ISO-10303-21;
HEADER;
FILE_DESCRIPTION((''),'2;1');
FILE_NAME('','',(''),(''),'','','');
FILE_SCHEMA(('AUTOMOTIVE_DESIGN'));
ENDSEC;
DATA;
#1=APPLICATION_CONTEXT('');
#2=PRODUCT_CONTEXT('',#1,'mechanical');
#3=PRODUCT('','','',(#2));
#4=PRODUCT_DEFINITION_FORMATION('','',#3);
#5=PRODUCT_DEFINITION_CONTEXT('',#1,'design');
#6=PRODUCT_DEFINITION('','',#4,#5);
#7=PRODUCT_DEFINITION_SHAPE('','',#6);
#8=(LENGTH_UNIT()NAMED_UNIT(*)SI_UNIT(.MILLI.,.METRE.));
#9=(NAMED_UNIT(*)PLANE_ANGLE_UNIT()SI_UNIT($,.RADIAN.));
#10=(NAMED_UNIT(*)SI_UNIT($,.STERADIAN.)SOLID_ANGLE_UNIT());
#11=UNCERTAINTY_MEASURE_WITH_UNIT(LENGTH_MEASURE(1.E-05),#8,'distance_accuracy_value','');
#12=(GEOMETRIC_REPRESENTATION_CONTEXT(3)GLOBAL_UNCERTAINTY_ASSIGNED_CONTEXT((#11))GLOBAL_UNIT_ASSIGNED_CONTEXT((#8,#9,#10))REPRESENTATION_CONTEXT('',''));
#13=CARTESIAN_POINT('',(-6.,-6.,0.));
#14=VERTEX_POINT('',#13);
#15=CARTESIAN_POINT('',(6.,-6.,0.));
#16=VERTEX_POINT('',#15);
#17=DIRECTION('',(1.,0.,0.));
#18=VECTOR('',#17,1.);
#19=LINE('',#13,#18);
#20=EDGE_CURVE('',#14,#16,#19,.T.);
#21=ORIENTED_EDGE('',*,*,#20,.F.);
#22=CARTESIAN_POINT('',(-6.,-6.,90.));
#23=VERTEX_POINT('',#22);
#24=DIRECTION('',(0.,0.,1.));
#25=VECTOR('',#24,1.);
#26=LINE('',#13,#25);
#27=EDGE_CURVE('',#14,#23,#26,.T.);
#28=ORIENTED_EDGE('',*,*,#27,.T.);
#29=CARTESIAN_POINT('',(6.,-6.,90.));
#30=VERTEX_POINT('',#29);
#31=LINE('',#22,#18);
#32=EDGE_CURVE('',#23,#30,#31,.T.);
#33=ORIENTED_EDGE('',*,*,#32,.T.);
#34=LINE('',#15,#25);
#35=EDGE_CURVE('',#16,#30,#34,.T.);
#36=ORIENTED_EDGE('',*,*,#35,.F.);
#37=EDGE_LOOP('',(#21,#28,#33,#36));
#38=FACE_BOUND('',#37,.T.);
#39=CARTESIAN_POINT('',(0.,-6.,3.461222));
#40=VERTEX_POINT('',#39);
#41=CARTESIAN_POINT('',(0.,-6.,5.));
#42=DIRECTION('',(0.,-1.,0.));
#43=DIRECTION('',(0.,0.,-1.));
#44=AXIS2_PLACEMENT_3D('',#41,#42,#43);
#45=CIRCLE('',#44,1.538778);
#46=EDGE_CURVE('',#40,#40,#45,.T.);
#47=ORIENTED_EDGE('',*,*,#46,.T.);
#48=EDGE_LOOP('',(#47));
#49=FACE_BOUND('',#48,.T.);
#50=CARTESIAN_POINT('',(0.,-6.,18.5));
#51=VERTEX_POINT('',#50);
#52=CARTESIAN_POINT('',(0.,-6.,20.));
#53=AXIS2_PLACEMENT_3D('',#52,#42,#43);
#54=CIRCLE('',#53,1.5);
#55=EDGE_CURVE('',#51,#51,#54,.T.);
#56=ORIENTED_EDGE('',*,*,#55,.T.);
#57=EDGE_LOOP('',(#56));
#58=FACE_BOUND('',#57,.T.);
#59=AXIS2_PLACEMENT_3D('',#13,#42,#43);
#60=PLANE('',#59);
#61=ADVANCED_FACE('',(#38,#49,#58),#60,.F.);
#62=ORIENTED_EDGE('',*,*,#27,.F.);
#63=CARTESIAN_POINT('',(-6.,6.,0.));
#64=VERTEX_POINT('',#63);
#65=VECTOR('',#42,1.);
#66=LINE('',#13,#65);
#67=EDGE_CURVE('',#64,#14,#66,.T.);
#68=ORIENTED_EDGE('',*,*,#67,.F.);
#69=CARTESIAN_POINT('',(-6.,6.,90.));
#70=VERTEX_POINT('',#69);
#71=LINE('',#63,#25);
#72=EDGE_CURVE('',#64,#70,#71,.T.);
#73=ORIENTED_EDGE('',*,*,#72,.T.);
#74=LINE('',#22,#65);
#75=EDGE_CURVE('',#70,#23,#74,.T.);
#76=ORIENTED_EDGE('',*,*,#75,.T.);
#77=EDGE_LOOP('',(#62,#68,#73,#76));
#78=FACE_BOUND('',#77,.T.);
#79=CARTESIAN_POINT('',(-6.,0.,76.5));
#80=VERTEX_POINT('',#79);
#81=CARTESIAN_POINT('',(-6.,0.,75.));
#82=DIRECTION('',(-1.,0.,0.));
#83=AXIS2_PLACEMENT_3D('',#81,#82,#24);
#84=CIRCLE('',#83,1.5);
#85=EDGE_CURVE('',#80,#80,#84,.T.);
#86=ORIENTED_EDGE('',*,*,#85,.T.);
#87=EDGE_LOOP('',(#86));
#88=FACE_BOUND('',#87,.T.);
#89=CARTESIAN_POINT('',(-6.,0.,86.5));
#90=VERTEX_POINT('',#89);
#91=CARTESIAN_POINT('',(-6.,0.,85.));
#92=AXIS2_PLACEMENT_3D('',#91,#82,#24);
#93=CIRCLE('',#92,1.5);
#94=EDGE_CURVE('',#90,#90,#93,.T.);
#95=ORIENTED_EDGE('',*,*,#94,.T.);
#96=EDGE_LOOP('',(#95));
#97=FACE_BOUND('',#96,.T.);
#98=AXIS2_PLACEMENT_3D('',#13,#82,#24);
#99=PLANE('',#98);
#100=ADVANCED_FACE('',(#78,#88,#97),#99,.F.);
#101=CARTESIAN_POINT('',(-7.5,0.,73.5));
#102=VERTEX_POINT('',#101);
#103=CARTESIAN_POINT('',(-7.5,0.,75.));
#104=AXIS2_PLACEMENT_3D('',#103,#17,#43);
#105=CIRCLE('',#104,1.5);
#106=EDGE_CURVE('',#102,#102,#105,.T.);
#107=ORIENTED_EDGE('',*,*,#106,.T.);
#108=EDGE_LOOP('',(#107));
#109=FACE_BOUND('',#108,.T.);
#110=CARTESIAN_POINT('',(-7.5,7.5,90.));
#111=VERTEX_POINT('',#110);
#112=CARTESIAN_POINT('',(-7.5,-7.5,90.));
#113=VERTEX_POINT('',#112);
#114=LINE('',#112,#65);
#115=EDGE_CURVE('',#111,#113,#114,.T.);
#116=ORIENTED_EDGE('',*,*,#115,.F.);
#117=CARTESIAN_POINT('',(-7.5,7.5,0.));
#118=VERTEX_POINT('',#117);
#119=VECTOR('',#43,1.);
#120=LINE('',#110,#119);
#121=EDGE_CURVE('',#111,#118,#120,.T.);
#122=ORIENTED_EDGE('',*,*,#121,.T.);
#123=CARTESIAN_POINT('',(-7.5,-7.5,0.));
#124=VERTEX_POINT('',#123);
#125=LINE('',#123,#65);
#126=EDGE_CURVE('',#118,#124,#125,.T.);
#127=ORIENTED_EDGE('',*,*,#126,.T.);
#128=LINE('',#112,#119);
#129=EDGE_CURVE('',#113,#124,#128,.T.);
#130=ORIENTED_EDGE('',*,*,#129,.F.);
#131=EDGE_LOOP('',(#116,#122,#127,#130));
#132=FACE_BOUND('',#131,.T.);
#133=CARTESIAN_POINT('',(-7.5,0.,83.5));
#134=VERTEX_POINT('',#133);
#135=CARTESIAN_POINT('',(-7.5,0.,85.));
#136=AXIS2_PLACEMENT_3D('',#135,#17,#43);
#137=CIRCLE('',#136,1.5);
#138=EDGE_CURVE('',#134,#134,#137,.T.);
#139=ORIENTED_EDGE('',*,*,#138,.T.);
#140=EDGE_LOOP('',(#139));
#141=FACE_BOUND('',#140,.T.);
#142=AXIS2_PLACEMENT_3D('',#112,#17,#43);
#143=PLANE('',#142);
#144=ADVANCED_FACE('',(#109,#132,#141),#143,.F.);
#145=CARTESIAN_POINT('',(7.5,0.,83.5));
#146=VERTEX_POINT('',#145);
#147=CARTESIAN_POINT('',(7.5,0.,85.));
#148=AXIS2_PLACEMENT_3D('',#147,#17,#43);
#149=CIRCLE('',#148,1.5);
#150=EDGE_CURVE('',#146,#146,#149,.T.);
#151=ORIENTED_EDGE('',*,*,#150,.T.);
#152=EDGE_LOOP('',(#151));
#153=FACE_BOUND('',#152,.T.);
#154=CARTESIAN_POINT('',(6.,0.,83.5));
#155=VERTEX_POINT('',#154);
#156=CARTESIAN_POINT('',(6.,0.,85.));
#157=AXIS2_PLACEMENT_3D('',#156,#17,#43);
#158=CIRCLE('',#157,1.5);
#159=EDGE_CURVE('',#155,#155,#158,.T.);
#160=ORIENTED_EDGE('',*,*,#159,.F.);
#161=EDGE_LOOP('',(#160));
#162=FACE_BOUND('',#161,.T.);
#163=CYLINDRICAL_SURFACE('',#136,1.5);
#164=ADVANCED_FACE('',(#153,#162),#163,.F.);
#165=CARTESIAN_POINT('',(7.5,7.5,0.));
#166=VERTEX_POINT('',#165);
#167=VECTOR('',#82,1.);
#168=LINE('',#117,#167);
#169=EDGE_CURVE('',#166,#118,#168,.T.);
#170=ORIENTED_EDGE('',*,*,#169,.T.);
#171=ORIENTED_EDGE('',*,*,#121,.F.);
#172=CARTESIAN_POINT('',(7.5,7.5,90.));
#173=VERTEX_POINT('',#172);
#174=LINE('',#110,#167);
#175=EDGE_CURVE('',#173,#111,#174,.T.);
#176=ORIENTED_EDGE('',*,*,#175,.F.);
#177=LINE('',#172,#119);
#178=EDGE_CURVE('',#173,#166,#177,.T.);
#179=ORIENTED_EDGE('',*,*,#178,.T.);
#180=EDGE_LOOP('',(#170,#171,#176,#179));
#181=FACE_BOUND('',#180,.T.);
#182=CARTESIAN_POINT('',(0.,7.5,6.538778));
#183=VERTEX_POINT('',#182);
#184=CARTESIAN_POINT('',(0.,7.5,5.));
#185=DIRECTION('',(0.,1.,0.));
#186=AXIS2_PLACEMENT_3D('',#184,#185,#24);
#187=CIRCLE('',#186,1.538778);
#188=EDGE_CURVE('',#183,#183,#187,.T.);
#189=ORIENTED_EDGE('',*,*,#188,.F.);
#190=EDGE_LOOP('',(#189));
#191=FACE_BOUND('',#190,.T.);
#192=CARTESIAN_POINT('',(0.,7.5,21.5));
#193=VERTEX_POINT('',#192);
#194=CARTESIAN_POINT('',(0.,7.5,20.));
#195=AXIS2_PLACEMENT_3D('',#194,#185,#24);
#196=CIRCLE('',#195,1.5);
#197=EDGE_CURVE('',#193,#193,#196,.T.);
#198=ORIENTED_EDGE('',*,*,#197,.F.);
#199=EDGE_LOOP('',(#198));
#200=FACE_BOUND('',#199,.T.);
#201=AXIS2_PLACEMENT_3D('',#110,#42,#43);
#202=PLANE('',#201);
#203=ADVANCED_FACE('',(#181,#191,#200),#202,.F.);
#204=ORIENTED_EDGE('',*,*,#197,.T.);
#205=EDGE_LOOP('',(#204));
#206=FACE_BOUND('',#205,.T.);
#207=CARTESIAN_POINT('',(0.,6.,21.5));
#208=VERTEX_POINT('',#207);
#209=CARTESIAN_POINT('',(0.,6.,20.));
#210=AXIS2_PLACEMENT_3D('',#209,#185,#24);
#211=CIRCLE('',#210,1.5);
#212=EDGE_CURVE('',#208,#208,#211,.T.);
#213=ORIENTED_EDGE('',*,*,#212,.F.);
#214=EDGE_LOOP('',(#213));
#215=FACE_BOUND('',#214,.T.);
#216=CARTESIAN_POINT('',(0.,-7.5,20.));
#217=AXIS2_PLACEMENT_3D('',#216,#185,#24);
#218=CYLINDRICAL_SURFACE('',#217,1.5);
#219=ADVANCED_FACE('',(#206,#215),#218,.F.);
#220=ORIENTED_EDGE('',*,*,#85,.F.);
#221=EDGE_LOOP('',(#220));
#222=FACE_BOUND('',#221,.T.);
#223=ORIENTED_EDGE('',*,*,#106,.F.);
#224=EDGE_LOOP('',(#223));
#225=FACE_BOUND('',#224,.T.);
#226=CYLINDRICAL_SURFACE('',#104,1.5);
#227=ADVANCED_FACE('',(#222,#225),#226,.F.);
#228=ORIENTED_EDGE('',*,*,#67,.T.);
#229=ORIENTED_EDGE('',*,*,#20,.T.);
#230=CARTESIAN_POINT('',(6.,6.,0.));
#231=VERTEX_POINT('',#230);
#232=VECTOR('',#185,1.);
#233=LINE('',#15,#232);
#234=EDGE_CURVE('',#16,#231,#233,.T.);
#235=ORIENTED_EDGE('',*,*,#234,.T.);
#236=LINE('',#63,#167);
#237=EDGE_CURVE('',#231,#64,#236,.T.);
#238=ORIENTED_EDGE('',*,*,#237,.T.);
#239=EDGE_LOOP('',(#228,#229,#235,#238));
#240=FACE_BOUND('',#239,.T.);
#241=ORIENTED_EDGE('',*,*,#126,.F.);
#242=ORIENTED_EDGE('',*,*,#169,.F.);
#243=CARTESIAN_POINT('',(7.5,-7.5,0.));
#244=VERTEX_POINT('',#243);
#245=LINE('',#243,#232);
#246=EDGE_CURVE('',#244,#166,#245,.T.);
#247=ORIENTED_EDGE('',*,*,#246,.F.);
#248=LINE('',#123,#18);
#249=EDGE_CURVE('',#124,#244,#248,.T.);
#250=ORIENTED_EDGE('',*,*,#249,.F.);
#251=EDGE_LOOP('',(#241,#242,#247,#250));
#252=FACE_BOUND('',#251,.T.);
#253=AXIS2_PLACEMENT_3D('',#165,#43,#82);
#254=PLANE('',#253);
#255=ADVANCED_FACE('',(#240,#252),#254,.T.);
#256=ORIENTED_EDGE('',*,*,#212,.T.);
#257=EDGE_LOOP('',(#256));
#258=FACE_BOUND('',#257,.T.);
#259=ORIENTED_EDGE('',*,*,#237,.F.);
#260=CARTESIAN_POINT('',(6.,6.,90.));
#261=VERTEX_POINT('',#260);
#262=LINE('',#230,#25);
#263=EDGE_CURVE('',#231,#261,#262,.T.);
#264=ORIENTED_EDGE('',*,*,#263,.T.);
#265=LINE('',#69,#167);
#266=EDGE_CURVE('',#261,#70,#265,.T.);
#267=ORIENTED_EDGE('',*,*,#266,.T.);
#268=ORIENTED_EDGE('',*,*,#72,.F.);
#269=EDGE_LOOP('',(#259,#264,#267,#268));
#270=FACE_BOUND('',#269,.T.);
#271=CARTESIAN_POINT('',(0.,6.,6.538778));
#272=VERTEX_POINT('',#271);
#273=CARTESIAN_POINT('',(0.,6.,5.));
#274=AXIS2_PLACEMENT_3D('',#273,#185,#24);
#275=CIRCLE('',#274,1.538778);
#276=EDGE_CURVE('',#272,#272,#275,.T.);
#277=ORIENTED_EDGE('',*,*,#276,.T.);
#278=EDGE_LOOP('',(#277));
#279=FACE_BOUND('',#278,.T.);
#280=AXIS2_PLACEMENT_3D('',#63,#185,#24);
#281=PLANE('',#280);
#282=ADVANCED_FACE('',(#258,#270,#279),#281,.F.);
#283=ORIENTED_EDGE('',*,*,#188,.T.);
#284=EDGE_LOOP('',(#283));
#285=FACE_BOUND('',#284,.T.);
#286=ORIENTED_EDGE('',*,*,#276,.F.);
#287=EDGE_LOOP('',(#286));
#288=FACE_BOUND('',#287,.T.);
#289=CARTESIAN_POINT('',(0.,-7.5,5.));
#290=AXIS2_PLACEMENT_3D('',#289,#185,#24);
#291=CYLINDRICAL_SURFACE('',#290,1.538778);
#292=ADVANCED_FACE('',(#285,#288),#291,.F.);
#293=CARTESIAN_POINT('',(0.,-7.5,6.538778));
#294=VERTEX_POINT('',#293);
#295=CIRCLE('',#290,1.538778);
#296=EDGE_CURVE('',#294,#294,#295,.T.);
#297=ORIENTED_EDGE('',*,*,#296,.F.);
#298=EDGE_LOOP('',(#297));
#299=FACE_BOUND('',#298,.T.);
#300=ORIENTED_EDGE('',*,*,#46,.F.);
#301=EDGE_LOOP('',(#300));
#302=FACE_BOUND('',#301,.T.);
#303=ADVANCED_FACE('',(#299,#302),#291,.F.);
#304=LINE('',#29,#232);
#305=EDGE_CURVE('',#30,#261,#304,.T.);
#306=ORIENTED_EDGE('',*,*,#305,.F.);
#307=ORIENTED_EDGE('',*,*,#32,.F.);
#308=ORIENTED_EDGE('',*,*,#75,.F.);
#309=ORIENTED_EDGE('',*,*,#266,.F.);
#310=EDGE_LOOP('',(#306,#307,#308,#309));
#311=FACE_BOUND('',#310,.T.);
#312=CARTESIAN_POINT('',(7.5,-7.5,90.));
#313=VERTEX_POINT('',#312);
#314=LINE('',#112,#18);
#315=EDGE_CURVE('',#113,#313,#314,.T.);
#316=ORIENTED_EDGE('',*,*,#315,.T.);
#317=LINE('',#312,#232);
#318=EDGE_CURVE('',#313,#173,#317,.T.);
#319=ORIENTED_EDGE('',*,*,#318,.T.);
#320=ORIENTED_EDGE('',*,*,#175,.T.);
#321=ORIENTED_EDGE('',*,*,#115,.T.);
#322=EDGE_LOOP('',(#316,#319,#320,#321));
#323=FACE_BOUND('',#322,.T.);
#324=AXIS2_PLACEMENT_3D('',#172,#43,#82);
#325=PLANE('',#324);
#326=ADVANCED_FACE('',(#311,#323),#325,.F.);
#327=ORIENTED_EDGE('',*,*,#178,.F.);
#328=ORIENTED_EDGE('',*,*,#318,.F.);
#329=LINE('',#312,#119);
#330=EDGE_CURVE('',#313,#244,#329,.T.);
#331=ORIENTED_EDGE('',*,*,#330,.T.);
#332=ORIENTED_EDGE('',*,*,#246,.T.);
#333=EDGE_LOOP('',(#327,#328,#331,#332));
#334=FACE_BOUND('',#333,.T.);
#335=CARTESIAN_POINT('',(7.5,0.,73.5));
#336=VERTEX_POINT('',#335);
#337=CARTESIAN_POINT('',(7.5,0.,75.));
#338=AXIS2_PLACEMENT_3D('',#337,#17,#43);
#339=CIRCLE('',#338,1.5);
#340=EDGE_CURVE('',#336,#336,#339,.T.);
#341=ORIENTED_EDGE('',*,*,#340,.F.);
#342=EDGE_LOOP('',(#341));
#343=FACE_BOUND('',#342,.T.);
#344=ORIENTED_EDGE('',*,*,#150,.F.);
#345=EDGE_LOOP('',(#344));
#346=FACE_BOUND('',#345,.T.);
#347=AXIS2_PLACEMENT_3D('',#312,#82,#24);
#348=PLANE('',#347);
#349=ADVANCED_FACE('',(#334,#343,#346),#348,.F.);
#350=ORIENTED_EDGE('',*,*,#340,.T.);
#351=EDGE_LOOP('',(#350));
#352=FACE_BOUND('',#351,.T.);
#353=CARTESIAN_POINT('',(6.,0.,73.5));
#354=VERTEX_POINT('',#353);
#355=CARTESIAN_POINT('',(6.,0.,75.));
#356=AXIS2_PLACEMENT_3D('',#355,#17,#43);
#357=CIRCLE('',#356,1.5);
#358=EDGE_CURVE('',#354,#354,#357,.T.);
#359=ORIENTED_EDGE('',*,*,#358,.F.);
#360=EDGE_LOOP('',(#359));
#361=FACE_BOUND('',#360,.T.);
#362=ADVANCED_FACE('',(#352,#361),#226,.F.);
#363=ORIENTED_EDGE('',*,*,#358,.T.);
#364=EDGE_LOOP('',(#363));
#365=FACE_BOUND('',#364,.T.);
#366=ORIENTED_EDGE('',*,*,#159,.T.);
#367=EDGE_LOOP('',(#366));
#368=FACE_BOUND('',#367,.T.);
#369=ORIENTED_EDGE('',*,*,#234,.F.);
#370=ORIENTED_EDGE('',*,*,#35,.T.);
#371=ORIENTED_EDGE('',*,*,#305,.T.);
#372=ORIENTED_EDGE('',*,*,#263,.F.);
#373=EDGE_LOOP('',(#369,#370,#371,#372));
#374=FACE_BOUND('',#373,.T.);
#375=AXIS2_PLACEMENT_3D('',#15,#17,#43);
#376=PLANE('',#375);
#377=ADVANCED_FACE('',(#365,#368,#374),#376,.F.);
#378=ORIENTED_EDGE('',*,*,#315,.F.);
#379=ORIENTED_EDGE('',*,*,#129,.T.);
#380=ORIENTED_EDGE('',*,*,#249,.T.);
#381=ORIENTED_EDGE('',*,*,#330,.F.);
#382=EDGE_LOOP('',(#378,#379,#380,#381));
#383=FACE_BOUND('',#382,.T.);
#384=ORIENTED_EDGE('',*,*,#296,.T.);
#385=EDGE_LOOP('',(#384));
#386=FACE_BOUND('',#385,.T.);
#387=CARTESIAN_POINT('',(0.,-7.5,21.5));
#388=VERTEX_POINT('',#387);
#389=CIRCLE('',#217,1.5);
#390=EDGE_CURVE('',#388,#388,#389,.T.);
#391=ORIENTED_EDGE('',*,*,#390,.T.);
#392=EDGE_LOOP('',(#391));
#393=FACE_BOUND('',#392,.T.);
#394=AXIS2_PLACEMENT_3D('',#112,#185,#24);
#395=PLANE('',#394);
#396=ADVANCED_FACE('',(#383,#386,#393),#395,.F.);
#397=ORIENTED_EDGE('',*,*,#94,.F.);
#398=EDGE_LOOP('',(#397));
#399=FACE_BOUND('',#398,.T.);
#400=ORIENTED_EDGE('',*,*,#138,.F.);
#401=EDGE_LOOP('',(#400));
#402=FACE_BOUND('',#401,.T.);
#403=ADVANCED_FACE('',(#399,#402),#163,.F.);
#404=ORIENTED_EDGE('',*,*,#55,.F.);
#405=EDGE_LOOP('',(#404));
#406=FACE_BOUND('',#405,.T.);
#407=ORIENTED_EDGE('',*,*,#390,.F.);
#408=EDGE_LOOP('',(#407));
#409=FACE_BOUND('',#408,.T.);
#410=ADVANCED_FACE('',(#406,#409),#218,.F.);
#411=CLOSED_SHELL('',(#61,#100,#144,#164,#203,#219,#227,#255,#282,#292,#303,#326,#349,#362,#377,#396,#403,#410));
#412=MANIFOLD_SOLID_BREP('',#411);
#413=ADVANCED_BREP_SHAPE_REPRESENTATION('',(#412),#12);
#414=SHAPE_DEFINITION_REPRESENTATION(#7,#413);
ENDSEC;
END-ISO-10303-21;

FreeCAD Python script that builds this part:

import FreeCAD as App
import Part
import Sketcher
Q = App.Units.Quantity


def add_polygon(sketch, points):
    """Adds a closed chain of lines whose ends are joined by coincident constraints."""
    first, n = sketch.GeometryCount, len(points)
    for a, b in zip(points, points[1:] + points[:1]):
        sketch.addGeometry(Part.LineSegment(App.Vector(*a, 0), App.Vector(*b, 0)), False)
    for i in range(n):
        sketch.addConstraint(Sketcher.Constraint("Coincident", first + i, 2, first + (i + 1) % n, 1))

doc = App.newDocument("Part")
body = doc.addObject("PartDesign::Body", "Body")

# Sketch on XY plane
sketch1 = body.newObject("Sketcher::SketchObject", "Sketch")
sketch1.AttachmentSupport = (doc.getObject("XY_Plane"), [""])
sketch1.MapMode = "FlatFace"
add_polygon(sketch1, [(-8, 8), (-8, -8), (8, -8), (8, 8)])  # lines 0-3
sketch1.addConstraint(Sketcher.Constraint("Vertical", 0))
sketch1.addConstraint(Sketcher.Constraint("Horizontal", 1))
sketch1.addConstraint(Sketcher.Constraint("Vertical", 2))
sketch1.addConstraint(Sketcher.Constraint("Horizontal", 3))
sketch1.addConstraint(Sketcher.Constraint("Symmetric", 0, 2, 2, 2, -1, 1))
sketch1.addConstraint(Sketcher.Constraint("Equal", 3, 0))
sketch1.addConstraint(Sketcher.Constraint("DistanceX", 1, 1, 1, 2, Q("15 mm")))
pad1 = body.newObject("PartDesign::Pad", "Pad")
pad1.Profile = sketch1
pad1.Length = 90

# Sketch on XY plane
sketch2 = body.newObject("Sketcher::SketchObject", "Sketch001")
sketch2.AttachmentSupport = (doc.getObject("XY_Plane"), [""])
sketch2.MapMode = "FlatFace"
sketch2.AttachmentOffset = App.Placement(App.Vector(0, 0, 90), App.Rotation())
add_polygon(sketch2, [(-6, 6), (-6, -6), (6, -6), (6, 6)])  # lines 0-3
sketch2.addConstraint(Sketcher.Constraint("Vertical", 0))
sketch2.addConstraint(Sketcher.Constraint("Horizontal", 1))
sketch2.addConstraint(Sketcher.Constraint("Vertical", 2))
sketch2.addConstraint(Sketcher.Constraint("Horizontal", 3))
sketch2.addConstraint(Sketcher.Constraint("Symmetric", 0, 2, 2, 2, -1, 1))
sketch2.addConstraint(Sketcher.Constraint("Equal", 3, 0))
sketch2.addConstraint(Sketcher.Constraint("DistanceX", 1, 1, 1, 2, Q("12 mm")))
pocket1 = body.newObject("PartDesign::Pocket", "Pocket")
pocket1.Profile = sketch2
pocket1.Type = "ThroughAll"

# Sketch on YZ plane
sketch3 = body.newObject("Sketcher::SketchObject", "Sketch002")
sketch3.AttachmentSupport = (doc.getObject("YZ_Plane"), [""])
sketch3.MapMode = "FlatFace"
sketch3.AttachmentOffset = App.Placement(App.Vector(0, 0, 7.5), App.Rotation())
sketch3.addGeometry(Part.Circle(App.Vector(0, 85, 0), App.Vector(0, 0, 1), 1.5), False)
sketch3.addGeometry(Part.Circle(App.Vector(0, 75, 0), App.Vector(0, 0, 1), 1.5), False)
sketch3.addConstraint(Sketcher.Constraint("Equal", 0, 1))
sketch3.addConstraint(Sketcher.Constraint("PointOnObject", 0, 3, -2))
sketch3.addConstraint(Sketcher.Constraint("PointOnObject", 1, 3, -2))
sketch3.addConstraint(Sketcher.Constraint("Diameter", 0, Q("3 mm")))
sketch3.addConstraint(Sketcher.Constraint("DistanceY", -1, 1, 0, 3, Q("85 mm")))
sketch3.addConstraint(Sketcher.Constraint("DistanceY", -1, 1, 1, 3, Q("75 mm")))
pocket2 = body.newObject("PartDesign::Pocket", "Pocket001")
pocket2.Profile = sketch3
pocket2.Type = "ThroughAll"

# Sketch on XZ plane
sketch4 = body.newObject("Sketcher::SketchObject", "Sketch003")
sketch4.AttachmentSupport = (doc.getObject("XZ_Plane"), [""])
sketch4.MapMode = "FlatFace"
sketch4.AttachmentOffset = App.Placement(App.Vector(0, 0, -7.5), App.Rotation())
sketch4.addGeometry(Part.Circle(App.Vector(0, 20, 0), App.Vector(0, 0, 1), 1.5), False)
sketch4.addGeometry(Part.Circle(App.Vector(0, 5, 0), App.Vector(0, 0, 1), 1.5), False)
sketch4.addConstraint(Sketcher.Constraint("PointOnObject", 0, 3, -2))
sketch4.addConstraint(Sketcher.Constraint("PointOnObject", 1, 3, -2))
sketch4.addConstraint(Sketcher.Constraint("Diameter", 0, Q("3 mm")))
sketch4.addConstraint(Sketcher.Constraint("DistanceY", -1, 1, 0, 3, Q("20 mm")))
sketch4.addConstraint(Sketcher.Constraint("DistanceY", -1, 1, 1, 3, Q("5 mm")))
sketch4.addConstraint(Sketcher.Constraint("Diameter", 1, Q("3.077557 mm")))
pocket3 = body.newObject("PartDesign::Pocket", "Pocket002")
pocket3.Profile = sketch4
pocket3.Type = "ThroughAll"
pocket3.Reversed = True

doc.recompute()
